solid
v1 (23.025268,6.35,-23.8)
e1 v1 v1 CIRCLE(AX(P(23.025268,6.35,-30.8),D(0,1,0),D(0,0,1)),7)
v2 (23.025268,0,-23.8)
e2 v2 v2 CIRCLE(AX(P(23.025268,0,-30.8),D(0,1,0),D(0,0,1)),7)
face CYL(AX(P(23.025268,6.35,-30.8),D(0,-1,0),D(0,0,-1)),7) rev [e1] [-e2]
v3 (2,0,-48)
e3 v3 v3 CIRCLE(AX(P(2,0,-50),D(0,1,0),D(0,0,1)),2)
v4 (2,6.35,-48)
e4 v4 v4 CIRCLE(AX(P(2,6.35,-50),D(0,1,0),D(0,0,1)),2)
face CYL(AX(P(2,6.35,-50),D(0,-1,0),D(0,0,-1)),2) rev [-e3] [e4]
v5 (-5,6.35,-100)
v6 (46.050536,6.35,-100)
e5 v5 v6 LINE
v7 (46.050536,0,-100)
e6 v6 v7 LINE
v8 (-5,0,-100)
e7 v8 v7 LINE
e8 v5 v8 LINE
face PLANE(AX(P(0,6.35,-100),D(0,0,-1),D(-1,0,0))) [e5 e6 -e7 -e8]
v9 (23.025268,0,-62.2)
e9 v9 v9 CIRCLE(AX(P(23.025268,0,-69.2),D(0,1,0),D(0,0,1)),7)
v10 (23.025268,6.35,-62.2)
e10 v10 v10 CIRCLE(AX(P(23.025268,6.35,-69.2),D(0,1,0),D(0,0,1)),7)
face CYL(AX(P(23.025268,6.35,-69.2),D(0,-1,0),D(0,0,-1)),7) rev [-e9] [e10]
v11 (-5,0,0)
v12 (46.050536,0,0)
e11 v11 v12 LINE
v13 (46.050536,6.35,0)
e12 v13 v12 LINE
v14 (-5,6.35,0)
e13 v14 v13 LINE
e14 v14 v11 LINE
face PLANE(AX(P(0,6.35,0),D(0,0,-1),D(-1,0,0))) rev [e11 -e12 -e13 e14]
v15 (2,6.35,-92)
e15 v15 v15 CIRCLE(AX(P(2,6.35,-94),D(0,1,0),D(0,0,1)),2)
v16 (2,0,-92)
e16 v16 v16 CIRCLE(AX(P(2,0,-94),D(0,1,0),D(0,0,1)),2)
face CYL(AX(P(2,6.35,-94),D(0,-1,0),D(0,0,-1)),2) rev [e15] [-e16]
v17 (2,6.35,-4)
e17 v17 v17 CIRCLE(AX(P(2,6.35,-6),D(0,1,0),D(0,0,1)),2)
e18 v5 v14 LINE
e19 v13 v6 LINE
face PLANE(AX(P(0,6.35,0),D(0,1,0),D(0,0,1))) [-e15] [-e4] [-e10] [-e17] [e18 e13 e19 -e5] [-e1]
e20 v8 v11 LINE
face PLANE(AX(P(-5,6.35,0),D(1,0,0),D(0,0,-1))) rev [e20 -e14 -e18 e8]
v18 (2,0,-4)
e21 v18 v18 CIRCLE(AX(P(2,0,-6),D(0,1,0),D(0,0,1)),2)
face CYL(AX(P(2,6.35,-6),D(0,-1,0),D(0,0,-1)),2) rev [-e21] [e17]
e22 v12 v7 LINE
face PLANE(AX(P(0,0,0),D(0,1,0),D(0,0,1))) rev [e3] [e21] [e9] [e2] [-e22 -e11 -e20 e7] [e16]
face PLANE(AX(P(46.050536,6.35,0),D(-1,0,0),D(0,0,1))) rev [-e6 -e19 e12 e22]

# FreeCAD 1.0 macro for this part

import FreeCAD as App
import Part
import Sketcher

V = App.Vector
Q = App.Units.Quantity


def add_polygon(sketch, points):
    """Adds a closed chain of lines whose ends are joined by coincident constraints."""
    first, n = sketch.GeometryCount, len(points)
    for a, b in zip(points, points[1:] + points[:1]):
        sketch.addGeometry(Part.LineSegment(App.Vector(*a, 0), App.Vector(*b, 0)), False)
    for i in range(n):
        sketch.addConstraint(Sketcher.Constraint("Coincident", first + i, 2, first + (i + 1) % n, 1))

doc = App.newDocument("Part")
body = doc.addObject("PartDesign::Body", "Body")

sketch1 = body.newObject("Sketcher::SketchObject", "Sketch")
sketch1.AttachmentSupport = (doc.getObject("XZ_Plane"), [""])
sketch1.MapMode = "FlatFace"
add_polygon(sketch1, [(-5, -100), (-5, 0), (46.1, 0), (46.1, -100)])
sketch1.addGeometry(Part.Circle(V(2, -6, 0), V(0, 0, 1), 2), False)
sketch1.addGeometry(Part.Circle(V(23, -30.8, 0), V(0, 0, 1), 7), False)
sketch1.addGeometry(Part.Circle(V(2, -50, 0), V(0, 0, 1), 2), False)
sketch1.addGeometry(Part.Circle(V(2, -94, 0), V(0, 0, 1), 2), False)
sketch1.addGeometry(Part.Circle(V(23, -69.2, 0), V(0, 0, 1), 7), False)
sketch1.addConstraint([
    Sketcher.Constraint("Vertical", 0),
    Sketcher.Constraint("Horizontal", 1),
    Sketcher.Constraint("Vertical", 2),
    Sketcher.Constraint("Horizontal", 3),
    Sketcher.Constraint("Equal", 4, 6),
    Sketcher.Constraint("Equal", 6, 7),
    Sketcher.Constraint("Equal", 5, 8),
    Sketcher.Constraint("PointOnObject", 0, 2, -1),
    Sketcher.Constraint("Vertical", 4, 3, 6, 3),
    Sketcher.Constraint("Vertical", 6, 3, 7, 3),
    Sketcher.Constraint("Vertical", 5, 3, 8, 3),
    Sketcher.Constraint("Diameter", 4, Q("4 mm")),
    Sketcher.Constraint("Diameter", 5, Q("14 mm")),
    Sketcher.Constraint("DistanceY", 0, 1, 0, 2, Q("100 mm")),
    Sketcher.Constraint("DistanceX", -1, 1, 4, 3, Q("2 mm")),
    Sketcher.Constraint("DistanceY", 4, 3, -1, 1, Q("6 mm")),
    Sketcher.Constraint("DistanceY", 6, 3, -1, 1, Q("50 mm")),
    Sketcher.Constraint("DistanceY", 7, 3, -1, 1, Q("94 mm")),
    Sketcher.Constraint("DistanceX", 0, 2, -1, 1, Q("5 mm")),
    Sketcher.Constraint("DistanceY", 5, 3, -1, 1, Q("30.8 mm")),
    Sketcher.Constraint("DistanceY", 8, 3, -1, 1, Q("69.2 mm")),
    Sketcher.Constraint("DistanceX", 1, 1, 1, 2, Q("51.050536 mm")),
    Sketcher.Constraint("DistanceX", -1, 1, 5, 3, Q("23.025268 mm")),
])
pad1 = body.newObject("PartDesign::Pad", "Pad")
pad1.Profile = sketch1
pad1.Length = 6.35
pad1.Reversed = True

doc.recompute()
